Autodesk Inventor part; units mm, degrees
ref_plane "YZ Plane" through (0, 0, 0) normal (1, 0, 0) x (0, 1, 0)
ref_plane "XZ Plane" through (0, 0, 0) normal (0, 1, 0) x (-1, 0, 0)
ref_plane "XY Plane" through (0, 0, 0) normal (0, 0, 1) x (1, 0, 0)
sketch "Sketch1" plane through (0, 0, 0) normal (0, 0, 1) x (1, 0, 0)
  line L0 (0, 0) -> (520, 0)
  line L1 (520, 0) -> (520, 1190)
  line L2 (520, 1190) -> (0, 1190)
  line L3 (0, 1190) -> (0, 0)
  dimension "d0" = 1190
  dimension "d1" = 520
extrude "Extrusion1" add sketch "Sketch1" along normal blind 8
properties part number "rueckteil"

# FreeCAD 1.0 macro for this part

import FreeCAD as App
import Part
import Sketcher
Q = App.Units.Quantity


def add_polygon(sketch, points):
    """Adds a closed chain of lines whose ends are joined by coincident constraints."""
    first, n = sketch.GeometryCount, len(points)
    for a, b in zip(points, points[1:] + points[:1]):
        sketch.addGeometry(Part.LineSegment(App.Vector(*a, 0), App.Vector(*b, 0)), False)
    for i in range(n):
        sketch.addConstraint(Sketcher.Constraint("Coincident", first + i, 2, first + (i + 1) % n, 1))

doc = App.newDocument("Part")
body = doc.addObject("PartDesign::Body", "Body")

sketch1 = body.newObject("Sketcher::SketchObject", "Sketch")
sketch1.AttachmentSupport = (doc.getObject("XY_Plane"), [""])
sketch1.MapMode = "FlatFace"
add_polygon(sketch1, [(0, 1190), (0, 0), (520, 0), (520, 1190)])
sketch1.addConstraint([
    Sketcher.Constraint("Vertical", 0),
    Sketcher.Constraint("Horizontal", 1),
    Sketcher.Constraint("Vertical", 2),
    Sketcher.Constraint("Horizontal", 3),
    Sketcher.Constraint("Coincident", 0, 2, -1, 1),
    Sketcher.Constraint("DistanceX", 1, 1, 1, 2, Q("520 mm")),
    Sketcher.Constraint("DistanceY", 0, 2, 0, 1, Q("1190 mm")),
])
pad1 = body.newObject("PartDesign::Pad", "Pad")
pad1.Profile = sketch1
pad1.Length = 8

doc.recompute()
